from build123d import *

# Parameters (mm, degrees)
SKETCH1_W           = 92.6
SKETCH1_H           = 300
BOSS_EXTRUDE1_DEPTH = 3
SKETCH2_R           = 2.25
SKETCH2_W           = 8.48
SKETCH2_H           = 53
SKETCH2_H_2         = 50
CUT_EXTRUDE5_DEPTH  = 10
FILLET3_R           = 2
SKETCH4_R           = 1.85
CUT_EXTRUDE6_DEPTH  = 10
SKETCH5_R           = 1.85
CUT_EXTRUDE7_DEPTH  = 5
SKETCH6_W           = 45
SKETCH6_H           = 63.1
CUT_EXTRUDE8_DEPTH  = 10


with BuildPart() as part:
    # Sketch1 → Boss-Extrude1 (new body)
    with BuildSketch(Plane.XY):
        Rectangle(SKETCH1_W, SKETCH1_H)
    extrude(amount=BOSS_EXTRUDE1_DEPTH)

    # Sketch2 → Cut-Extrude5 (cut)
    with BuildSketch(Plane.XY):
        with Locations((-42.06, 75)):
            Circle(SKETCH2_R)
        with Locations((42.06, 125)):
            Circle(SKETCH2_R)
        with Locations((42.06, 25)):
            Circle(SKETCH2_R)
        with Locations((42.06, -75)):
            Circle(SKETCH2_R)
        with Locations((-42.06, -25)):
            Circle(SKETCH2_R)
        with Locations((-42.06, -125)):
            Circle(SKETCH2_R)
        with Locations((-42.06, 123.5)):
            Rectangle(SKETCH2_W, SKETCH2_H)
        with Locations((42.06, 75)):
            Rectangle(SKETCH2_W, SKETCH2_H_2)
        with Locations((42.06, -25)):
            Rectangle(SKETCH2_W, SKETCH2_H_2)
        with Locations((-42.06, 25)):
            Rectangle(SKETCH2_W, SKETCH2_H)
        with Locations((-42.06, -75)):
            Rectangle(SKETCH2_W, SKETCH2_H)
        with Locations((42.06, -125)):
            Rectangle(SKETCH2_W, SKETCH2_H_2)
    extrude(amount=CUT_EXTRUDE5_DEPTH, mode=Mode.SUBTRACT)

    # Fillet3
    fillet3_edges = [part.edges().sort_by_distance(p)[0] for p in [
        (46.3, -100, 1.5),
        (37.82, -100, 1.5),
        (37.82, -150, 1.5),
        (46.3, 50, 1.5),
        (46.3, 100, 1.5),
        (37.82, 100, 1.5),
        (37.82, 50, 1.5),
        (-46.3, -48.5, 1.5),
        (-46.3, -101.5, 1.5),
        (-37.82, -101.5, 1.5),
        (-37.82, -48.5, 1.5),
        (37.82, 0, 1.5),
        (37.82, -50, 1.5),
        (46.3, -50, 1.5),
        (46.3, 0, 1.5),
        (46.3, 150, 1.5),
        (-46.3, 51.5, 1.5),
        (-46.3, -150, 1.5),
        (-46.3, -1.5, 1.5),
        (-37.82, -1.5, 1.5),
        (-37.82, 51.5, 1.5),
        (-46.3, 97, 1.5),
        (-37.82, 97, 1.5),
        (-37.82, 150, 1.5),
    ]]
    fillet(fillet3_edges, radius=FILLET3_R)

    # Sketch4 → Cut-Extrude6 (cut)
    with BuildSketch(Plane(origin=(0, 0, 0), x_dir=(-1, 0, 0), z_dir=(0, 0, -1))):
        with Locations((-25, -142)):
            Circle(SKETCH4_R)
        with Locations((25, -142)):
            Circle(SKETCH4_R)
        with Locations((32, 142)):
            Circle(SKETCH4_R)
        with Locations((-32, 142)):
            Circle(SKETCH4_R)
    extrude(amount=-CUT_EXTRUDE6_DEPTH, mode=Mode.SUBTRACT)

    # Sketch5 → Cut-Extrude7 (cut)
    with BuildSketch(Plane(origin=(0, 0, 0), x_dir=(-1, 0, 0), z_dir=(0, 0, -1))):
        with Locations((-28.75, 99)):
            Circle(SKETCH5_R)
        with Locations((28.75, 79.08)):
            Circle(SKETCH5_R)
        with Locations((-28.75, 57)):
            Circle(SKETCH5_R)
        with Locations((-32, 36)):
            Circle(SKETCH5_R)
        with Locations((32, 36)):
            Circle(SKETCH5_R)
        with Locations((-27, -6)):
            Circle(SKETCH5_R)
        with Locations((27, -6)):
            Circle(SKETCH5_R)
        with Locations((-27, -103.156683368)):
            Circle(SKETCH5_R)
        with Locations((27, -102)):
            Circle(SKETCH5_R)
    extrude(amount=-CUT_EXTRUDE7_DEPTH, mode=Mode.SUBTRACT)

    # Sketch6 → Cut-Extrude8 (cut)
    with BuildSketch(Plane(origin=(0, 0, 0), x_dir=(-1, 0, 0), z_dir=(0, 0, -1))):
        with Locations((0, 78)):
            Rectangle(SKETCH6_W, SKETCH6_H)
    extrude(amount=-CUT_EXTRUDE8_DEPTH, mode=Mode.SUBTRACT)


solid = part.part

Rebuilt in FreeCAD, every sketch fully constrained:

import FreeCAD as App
import Part
import Sketcher

V = App.Vector


def edges_at(feature, points):
    """Names of the edges that pass closest to the given points."""
    edges = feature.Shape.Edges
    near = lambda p: min(range(len(edges)), key=lambda i: edges[i].distToShape(Part.Vertex(*p))[0])
    return sorted({f"Edge{near(p) + 1}" for p in points})


def add_polygon(sketch, points):
    """Adds a closed chain of lines whose ends are joined by coincident constraints."""
    first, n = sketch.GeometryCount, len(points)
    for a, b in zip(points, points[1:] + points[:1]):
        sketch.addGeometry(Part.LineSegment(App.Vector(*a, 0), App.Vector(*b, 0)), False)
    for i in range(n):
        sketch.addConstraint(Sketcher.Constraint("Coincident", first + i, 2, first + (i + 1) % n, 1))

doc = App.newDocument("Part")
body = doc.addObject("PartDesign::Body", "Body")

sketch1 = body.newObject("Sketcher::SketchObject", "Sketch")
sketch1.AttachmentSupport = (doc.getObject("XY_Plane"), [""])
sketch1.MapMode = "FlatFace"
add_polygon(sketch1, [(-46, 150), (-46, -150), (46, -150), (46, 150)])
sketch1.addConstraint([
    Sketcher.Constraint("Vertical", 0),
    Sketcher.Constraint("Horizontal", 1),
    Sketcher.Constraint("Vertical", 2),
    Sketcher.Constraint("Horizontal", 3),
    Sketcher.Constraint("Symmetric", 0, 2, 2, 2, -1, 1),
    Sketcher.Constraint("DistanceY", 0, 2, 0, 1, 300.0),
    Sketcher.Constraint("DistanceX", 1, 1, 1, 2, 92.6),
])
pad1 = body.newObject("PartDesign::Pad", "Pad")
pad1.Profile = sketch1
pad1.Length = 3

sketch2 = body.newObject("Sketcher::SketchObject", "Sketch001")
sketch2.AttachmentSupport = (doc.getObject("XY_Plane"), [""])
sketch2.MapMode = "FlatFace"
sketch2.addGeometry(Part.Circle(V(-42.1, 75, 0), V(0, 0, 1), 2.2), False)
sketch2.addGeometry(Part.Circle(V(42.1, 125, 0), V(0, 0, 1), 2.2), False)
sketch2.addGeometry(Part.Circle(V(42.1, 25, 0), V(0, 0, 1), 2.2), False)
sketch2.addGeometry(Part.Circle(V(42.1, -75, 0), V(0, 0, 1), 2.2), False)
sketch2.addGeometry(Part.Circle(V(-42.1, -25, 0), V(0, 0, 1), 2.2), False)
sketch2.addGeometry(Part.Circle(V(-42.1, -125, 0), V(0, 0, 1), 2.2), False)
add_polygon(sketch2, [(-46.3, 150), (-46.3, 97), (-37.8, 97), (-37.8, 150)])
add_polygon(sketch2, [(37.8, 100), (37.8, 50), (46.3, 50), (46.3, 100)])
add_polygon(sketch2, [(37.8, 0), (37.8, -50), (46.3, -50), (46.3, 0)])
add_polygon(sketch2, [(-46.3, 51.5), (-46.3, -1.5), (-37.8, -1.5), (-37.8, 51.5)])
add_polygon(sketch2, [(-46.3, -48.5), (-46.3, -101.5), (-37.8, -101.5), (-37.8, -48.5)])
add_polygon(sketch2, [(37.8, -100), (37.8, -150), (46.3, -150), (46.3, -100)])
sketch2.addConstraint([
    Sketcher.Constraint("Vertical", 6),
    Sketcher.Constraint("Horizontal", 7),
    Sketcher.Constraint("Vertical", 8),
    Sketcher.Constraint("Horizontal", 9),
    Sketcher.Constraint("Vertical", 10),
    Sketcher.Constraint("Horizontal", 11),
    Sketcher.Constraint("Vertical", 12),
    Sketcher.Constraint("Horizontal", 13),
    Sketcher.Constraint("Vertical", 14),
    Sketcher.Constraint("Horizontal", 15),
    Sketcher.Constraint("Vertical", 16),
    Sketcher.Constraint("Horizontal", 17),
    Sketcher.Constraint("Vertical", 18),
    Sketcher.Constraint("Horizontal", 19),
    Sketcher.Constraint("Vertical", 20),
    Sketcher.Constraint("Horizontal", 21),
    Sketcher.Constraint("Vertical", 22),
    Sketcher.Constraint("Horizontal", 23),
    Sketcher.Constraint("Vertical", 24),
    Sketcher.Constraint("Horizontal", 25),
    Sketcher.Constraint("Vertical", 26),
    Sketcher.Constraint("Horizontal", 27),
    Sketcher.Constraint("Vertical", 28),
    Sketcher.Constraint("Horizontal", 29),
    Sketcher.Constraint("Equal", 0, 1),
    Sketcher.Constraint("Equal", 1, 2),
    Sketcher.Constraint("Equal", 2, 3),
    Sketcher.Constraint("Equal", 3, 4),
    Sketcher.Constraint("Equal", 4, 5),
    Sketcher.Constraint("Symmetric", 0, 3, 3, 3, -1, 1),
    Sketcher.Constraint("Symmetric", 2, 3, 4, 3, -1, 1),
    Sketcher.Constraint("Symmetric", 1, 3, 5, 3, -1, 1),
    Sketcher.Constraint("Symmetric", 8, 2, 26, 2, -1, 1),
    Sketcher.Constraint("Symmetric", 10, 2, 14, 2, -1),
    Sketcher.Constraint("Symmetric", 12, 2, 28, 2, -1),
    Sketcher.Constraint("PointOnObject", 16, 2, -1),
    Sketcher.Constraint("Vertical", 1, 3, 2, 3),
    Sketcher.Constraint("Vertical", 2, 3, 3, 3),
    Sketcher.Constraint("Vertical", 12, 2, 15, 2),
    Sketcher.Constraint("Vertical", 9, 2, 18, 2),
    Sketcher.Constraint("Vertical", 8, 2, 19, 2),
    Sketcher.Constraint("Vertical", 21, 2, 22, 2),
    Sketcher.Constraint("Vertical", 20, 2, 23, 2),
    Sketcher.Constraint("Vertical", 17, 2, 26, 2),
    Sketcher.Constraint("Equal", 9, 11),
    Sketcher.Constraint("Equal", 12, 14),
    Sketcher.Constraint("Equal", 8, 18),
    Sketcher.Constraint("Equal", 20, 22),
    Sketcher.Constraint("Equal", 16, 26),
    Sketcher.Constraint("Diameter", 0, 4.5),
    Sketcher.Constraint("DistanceY", 6, 2, 6, 1, 53.0),
    Sketcher.Constraint("DistanceY", 10, 2, 10, 1, 50.0),
    Sketcher.Constraint("DistanceY", -1, 1, 0, 3, 75.0),
    Sketcher.Constraint("DistanceY", -1, 1, 1, 3, 125.0),
    Sketcher.Constraint("DistanceY", -1, 1, 2, 3, 25.0),
    Sketcher.Constraint("DistanceY", 22, 2, 18, 2, 100.0),
    Sketcher.Constraint("DistanceX", 7, 1, 7, 2, 8.48),
    Sketcher.Constraint("DistanceX", 6, 2, -1, 1, 46.3),
    Sketcher.Constraint("DistanceY", 18, 2, -1, 1, 1.5),
    Sketcher.Constraint("DistanceX", 0, 3, -1, 1, 42.06),
])
pocket1 = body.newObject("PartDesign::Pocket", "Pocket")
pocket1.Profile = sketch2
pocket1.Length = 10
pocket1.Reversed = True
doc.recompute()

fillet = body.newObject("PartDesign::Fillet", "Fillet")
fillet.Base = (pocket1, edges_at(pocket1, [
    (46.3, -100, 1.5),
    (37.82, -100, 1.5),
    (37.82, -150, 1.5),
    (46.3, 50, 1.5),
    (46.3, 100, 1.5),
    (37.82, 100, 1.5),
    (37.82, 50, 1.5),
    (-46.3, -48.5, 1.5),
    (-46.3, -101.5, 1.5),
    (-37.82, -101.5, 1.5),
    (-37.82, -48.5, 1.5),
    (37.82, 0, 1.5),
    (37.82, -50, 1.5),
    (46.3, -50, 1.5),
    (46.3, 0, 1.5),
    (46.3, 150, 1.5),
    (-46.3, 51.5, 1.5),
    (-46.3, -150, 1.5),
    (-46.3, -1.5, 1.5),
    (-37.82, -1.5, 1.5),
    (-37.82, 51.5, 1.5),
    (-46.3, 97, 1.5),
    (-37.82, 97, 1.5),
    (-37.82, 150, 1.5),
]))
fillet.Radius = 2

sketch3 = body.newObject("Sketcher::SketchObject", "Sketch002")
sketch3.AttachmentSupport = (doc.getObject("XY_Plane"), [""])
sketch3.MapMode = "FlatFace"
sketch3.addGeometry([
    Part.Circle(V(25, -142, 0), V(0, 0, 1), 1.9),
    Part.Circle(V(-25, -142, 0), V(0, 0, 1), 1.9),
    Part.Circle(V(-32, 142, 0), V(0, 0, 1), 1.9),
    Part.Circle(V(32, 142, 0), V(0, 0, 1), 1.9),
], False)
sketch3.addConstraint([
    Sketcher.Constraint("Equal", 0, 1),
    Sketcher.Constraint("Equal", 1, 2),
    Sketcher.Constraint("Equal", 2, 3),
    Sketcher.Constraint("Symmetric", 0, 3, 1, 3, -2),
    Sketcher.Constraint("Symmetric", 2, 3, 3, 3, -2),
    Sketcher.Constraint("Diameter", 0, 3.7),
    Sketcher.Constraint("DistanceX", -1, 1, 0, 3, 25.0),
    Sketcher.Constraint("DistanceY", 0, 3, -1, 1, 142.0),
    Sketcher.Constraint("DistanceX", 2, 3, -1, 1, 32.0),
    Sketcher.Constraint("DistanceY", -1, 1, 2, 3, 142.0),
])
pocket2 = body.newObject("PartDesign::Pocket", "Pocket001")
pocket2.Profile = sketch3
pocket2.Length = 10
pocket2.Reversed = True

sketch4 = body.newObject("Sketcher::SketchObject", "Sketch003")
sketch4.AttachmentSupport = (doc.getObject("XY_Plane"), [""])
sketch4.MapMode = "FlatFace"
sketch4.addGeometry([
    Part.Circle(V(28.8, 99, 0), V(0, 0, 1), 1.9),
    Part.Circle(V(-28.8, 79.1, 0), V(0, 0, 1), 1.9),
    Part.Circle(V(28.8, 57, 0), V(0, 0, 1), 1.9),
    Part.Circle(V(32, 36, 0), V(0, 0, 1), 1.9),
    Part.Circle(V(-32, 36, 0), V(0, 0, 1), 1.9),
    Part.Circle(V(27, -6, 0), V(0, 0, 1), 1.9),
    Part.Circle(V(-27, -6, 0), V(0, 0, 1), 1.9),
    Part.Circle(V(27, -103.2, 0), V(0, 0, 1), 1.9),
    Part.Circle(V(-27, -102, 0), V(0, 0, 1), 1.9),
], False)
sketch4.addConstraint([
    Sketcher.Constraint("Equal", 0, 1),
    Sketcher.Constraint("Equal", 1, 2),
    Sketcher.Constraint("Equal", 2, 3),
    Sketcher.Constraint("Equal", 3, 4),
    Sketcher.Constraint("Equal", 4, 5),
    Sketcher.Constraint("Equal", 5, 6),
    Sketcher.Constraint("Equal", 6, 7),
    Sketcher.Constraint("Equal", 7, 8),
    Sketcher.Constraint("Symmetric", 3, 3, 4, 3, -2),
    Sketcher.Constraint("Symmetric", 5, 3, 6, 3, -2),
    Sketcher.Constraint("Vertical", 0, 3, 2, 3),
    Sketcher.Constraint("Vertical", 5, 3, 7, 3),
    Sketcher.Constraint("Vertical", 6, 3, 8, 3),
    Sketcher.Constraint("Diameter", 0, 3.7),
    Sketcher.Constraint("DistanceY", -1, 1, 0, 3, 99.0),
    Sketcher.Constraint("DistanceY", -1, 1, 2, 3, 57.0),
    Sketcher.Constraint("DistanceX", -1, 1, 3, 3, 32.0),
    Sketcher.Constraint("DistanceY", -1, 1, 3, 3, 36.0),
    Sketcher.Constraint("DistanceX", -1, 1, 5, 3, 27.0),
    Sketcher.Constraint("DistanceY", 5, 3, -1, 1, 6.0),
    Sketcher.Constraint("DistanceY", 8, 3, -1, 1, 102.0),
    Sketcher.Constraint("DistanceX", 1, 3, 0, 3, 57.5),
    Sketcher.Constraint("DistanceX", -1, 1, 0, 3, 28.75),
    Sketcher.Constraint("DistanceY", -1, 1, 1, 3, 79.08),
    Sketcher.Constraint("DistanceY", 7, 3, -1, 1, 103.156683),
])
pocket3 = body.newObject("PartDesign::Pocket", "Pocket002")
pocket3.Profile = sketch4
pocket3.Length = 5
pocket3.Reversed = True

sketch5 = body.newObject("Sketcher::SketchObject", "Sketch004")
sketch5.AttachmentSupport = (doc.getObject("XY_Plane"), [""])
sketch5.MapMode = "FlatFace"
add_polygon(sketch5, [(22, 110), (22, 46), (-22, 46), (-22, 110)])
sketch5.addConstraint([
    Sketcher.Constraint("Vertical", 0),
    Sketcher.Constraint("Horizontal", 1),
    Sketcher.Constraint("Vertical", 2),
    Sketcher.Constraint("Horizontal", 3),
    Sketcher.Constraint("DistanceX", 1, 2, 1, 1, 45.0),
    Sketcher.Constraint("DistanceY", 0, 2, 0, 1, 63.1),
    Sketcher.Constraint("DistanceX", -1, 1, 0, 2, 22.5),
    Sketcher.Constraint("DistanceY", -1, 1, 0, 2, 46.45),
])
pocket4 = body.newObject("PartDesign::Pocket", "Pocket003")
pocket4.Profile = sketch5
pocket4.Length = 10
pocket4.Reversed = True

doc.recompute()
